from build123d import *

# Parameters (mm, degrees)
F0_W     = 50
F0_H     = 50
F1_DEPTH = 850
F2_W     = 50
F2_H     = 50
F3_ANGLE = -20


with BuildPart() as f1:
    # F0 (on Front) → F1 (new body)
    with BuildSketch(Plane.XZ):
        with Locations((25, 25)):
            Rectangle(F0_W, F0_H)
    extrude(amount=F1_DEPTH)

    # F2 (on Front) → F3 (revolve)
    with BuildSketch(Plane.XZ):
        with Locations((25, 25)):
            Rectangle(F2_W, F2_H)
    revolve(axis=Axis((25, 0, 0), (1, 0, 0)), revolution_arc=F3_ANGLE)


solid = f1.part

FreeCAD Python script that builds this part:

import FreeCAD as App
import Part
import Sketcher
Q = App.Units.Quantity

doc = App.newDocument("Part")
params = doc.addObject("Spreadsheet::Sheet", "Params")
for row, (alias, value) in enumerate([
    ("sketch1_width", "50 mm"),
    ("pad1_length", "850 mm"),
    ("sketch2_width", "50 mm"),
    ("revolution_angle", "20 deg"),
], start=1):
    params.set(f"A{row}", alias)
    params.set(f"B{row}", "=" + value)
    params.setAlias(f"B{row}", alias)

body = doc.addObject("PartDesign::Body", "Body")

sketch1 = doc.addObject("Sketcher::SketchObject", "Sketch")
body.addObject(sketch1)
sketch1.AttachmentSupport = (doc.XZ_Plane, [""])
sketch1.MapMode = "FlatFace"
sketch1.addGeometry(Part.LineSegment(App.Vector(0, 50, 0), App.Vector(0, 0, 0)), False)
sketch1.addGeometry(Part.LineSegment(App.Vector(0, 0, 0), App.Vector(50, 0, 0)), False)
sketch1.addGeometry(Part.LineSegment(App.Vector(50, 0, 0), App.Vector(50, 50, 0)), False)
sketch1.addGeometry(Part.LineSegment(App.Vector(50, 50, 0), App.Vector(0, 50, 0)), False)
sketch1.addConstraint(Sketcher.Constraint("Coincident", 0, 2, 1, 1))
sketch1.addConstraint(Sketcher.Constraint("Coincident", 1, 2, 2, 1))
sketch1.addConstraint(Sketcher.Constraint("Coincident", 2, 2, 3, 1))
sketch1.addConstraint(Sketcher.Constraint("Coincident", 3, 2, 0, 1))
sketch1.addConstraint(Sketcher.Constraint("Vertical", 0))
sketch1.addConstraint(Sketcher.Constraint("Horizontal", 1))
sketch1.addConstraint(Sketcher.Constraint("Vertical", 2))
sketch1.addConstraint(Sketcher.Constraint("Horizontal", 3))
sketch1.addConstraint(Sketcher.Constraint("Coincident", 0, 2, -1, 1))
sketch1.addConstraint(Sketcher.Constraint("Equal", 3, 0))
sketch1.addConstraint(Sketcher.Constraint("DistanceX", 1, 1, 1, 2, Q("50 mm")))
sketch1.setExpression("Constraints[10]", "Params.sketch1_width")
pad1 = doc.addObject("PartDesign::Pad", "Pad")
body.addObject(pad1)
pad1.Profile = sketch1
pad1.setExpression("Length", "Params.pad1_length")

sketch2 = doc.addObject("Sketcher::SketchObject", "Sketch001")
body.addObject(sketch2)
sketch2.AttachmentSupport = (doc.XZ_Plane, [""])
sketch2.MapMode = "FlatFace"
sketch2.addGeometry(Part.LineSegment(App.Vector(0, 50, 0), App.Vector(0, 0, 0)), False)
sketch2.addGeometry(Part.LineSegment(App.Vector(0, 0, 0), App.Vector(50, 0, 0)), False)
sketch2.addGeometry(Part.LineSegment(App.Vector(50, 0, 0), App.Vector(50, 50, 0)), False)
sketch2.addGeometry(Part.LineSegment(App.Vector(50, 50, 0), App.Vector(0, 50, 0)), False)
sketch2.addConstraint(Sketcher.Constraint("Coincident", 0, 2, 1, 1))
sketch2.addConstraint(Sketcher.Constraint("Coincident", 1, 2, 2, 1))
sketch2.addConstraint(Sketcher.Constraint("Coincident", 2, 2, 3, 1))
sketch2.addConstraint(Sketcher.Constraint("Coincident", 3, 2, 0, 1))
sketch2.addConstraint(Sketcher.Constraint("Vertical", 0))
sketch2.addConstraint(Sketcher.Constraint("Horizontal", 1))
sketch2.addConstraint(Sketcher.Constraint("Vertical", 2))
sketch2.addConstraint(Sketcher.Constraint("Horizontal", 3))
sketch2.addConstraint(Sketcher.Constraint("Coincident", 0, 2, -1, 1))
sketch2.addConstraint(Sketcher.Constraint("Equal", 3, 0))
sketch2.addConstraint(Sketcher.Constraint("DistanceX", 1, 1, 1, 2, Q("50 mm")))
sketch2.setExpression("Constraints[10]", "Params.sketch2_width")
revolution = doc.addObject("PartDesign::Revolution", "Revolution")
body.addObject(revolution)
revolution.Profile = sketch2
revolution.ReferenceAxis = (sketch2, ["H_Axis"])
revolution.setExpression("Angle", "Params.revolution_angle")
revolution.Reversed = True

doc.recompute()
